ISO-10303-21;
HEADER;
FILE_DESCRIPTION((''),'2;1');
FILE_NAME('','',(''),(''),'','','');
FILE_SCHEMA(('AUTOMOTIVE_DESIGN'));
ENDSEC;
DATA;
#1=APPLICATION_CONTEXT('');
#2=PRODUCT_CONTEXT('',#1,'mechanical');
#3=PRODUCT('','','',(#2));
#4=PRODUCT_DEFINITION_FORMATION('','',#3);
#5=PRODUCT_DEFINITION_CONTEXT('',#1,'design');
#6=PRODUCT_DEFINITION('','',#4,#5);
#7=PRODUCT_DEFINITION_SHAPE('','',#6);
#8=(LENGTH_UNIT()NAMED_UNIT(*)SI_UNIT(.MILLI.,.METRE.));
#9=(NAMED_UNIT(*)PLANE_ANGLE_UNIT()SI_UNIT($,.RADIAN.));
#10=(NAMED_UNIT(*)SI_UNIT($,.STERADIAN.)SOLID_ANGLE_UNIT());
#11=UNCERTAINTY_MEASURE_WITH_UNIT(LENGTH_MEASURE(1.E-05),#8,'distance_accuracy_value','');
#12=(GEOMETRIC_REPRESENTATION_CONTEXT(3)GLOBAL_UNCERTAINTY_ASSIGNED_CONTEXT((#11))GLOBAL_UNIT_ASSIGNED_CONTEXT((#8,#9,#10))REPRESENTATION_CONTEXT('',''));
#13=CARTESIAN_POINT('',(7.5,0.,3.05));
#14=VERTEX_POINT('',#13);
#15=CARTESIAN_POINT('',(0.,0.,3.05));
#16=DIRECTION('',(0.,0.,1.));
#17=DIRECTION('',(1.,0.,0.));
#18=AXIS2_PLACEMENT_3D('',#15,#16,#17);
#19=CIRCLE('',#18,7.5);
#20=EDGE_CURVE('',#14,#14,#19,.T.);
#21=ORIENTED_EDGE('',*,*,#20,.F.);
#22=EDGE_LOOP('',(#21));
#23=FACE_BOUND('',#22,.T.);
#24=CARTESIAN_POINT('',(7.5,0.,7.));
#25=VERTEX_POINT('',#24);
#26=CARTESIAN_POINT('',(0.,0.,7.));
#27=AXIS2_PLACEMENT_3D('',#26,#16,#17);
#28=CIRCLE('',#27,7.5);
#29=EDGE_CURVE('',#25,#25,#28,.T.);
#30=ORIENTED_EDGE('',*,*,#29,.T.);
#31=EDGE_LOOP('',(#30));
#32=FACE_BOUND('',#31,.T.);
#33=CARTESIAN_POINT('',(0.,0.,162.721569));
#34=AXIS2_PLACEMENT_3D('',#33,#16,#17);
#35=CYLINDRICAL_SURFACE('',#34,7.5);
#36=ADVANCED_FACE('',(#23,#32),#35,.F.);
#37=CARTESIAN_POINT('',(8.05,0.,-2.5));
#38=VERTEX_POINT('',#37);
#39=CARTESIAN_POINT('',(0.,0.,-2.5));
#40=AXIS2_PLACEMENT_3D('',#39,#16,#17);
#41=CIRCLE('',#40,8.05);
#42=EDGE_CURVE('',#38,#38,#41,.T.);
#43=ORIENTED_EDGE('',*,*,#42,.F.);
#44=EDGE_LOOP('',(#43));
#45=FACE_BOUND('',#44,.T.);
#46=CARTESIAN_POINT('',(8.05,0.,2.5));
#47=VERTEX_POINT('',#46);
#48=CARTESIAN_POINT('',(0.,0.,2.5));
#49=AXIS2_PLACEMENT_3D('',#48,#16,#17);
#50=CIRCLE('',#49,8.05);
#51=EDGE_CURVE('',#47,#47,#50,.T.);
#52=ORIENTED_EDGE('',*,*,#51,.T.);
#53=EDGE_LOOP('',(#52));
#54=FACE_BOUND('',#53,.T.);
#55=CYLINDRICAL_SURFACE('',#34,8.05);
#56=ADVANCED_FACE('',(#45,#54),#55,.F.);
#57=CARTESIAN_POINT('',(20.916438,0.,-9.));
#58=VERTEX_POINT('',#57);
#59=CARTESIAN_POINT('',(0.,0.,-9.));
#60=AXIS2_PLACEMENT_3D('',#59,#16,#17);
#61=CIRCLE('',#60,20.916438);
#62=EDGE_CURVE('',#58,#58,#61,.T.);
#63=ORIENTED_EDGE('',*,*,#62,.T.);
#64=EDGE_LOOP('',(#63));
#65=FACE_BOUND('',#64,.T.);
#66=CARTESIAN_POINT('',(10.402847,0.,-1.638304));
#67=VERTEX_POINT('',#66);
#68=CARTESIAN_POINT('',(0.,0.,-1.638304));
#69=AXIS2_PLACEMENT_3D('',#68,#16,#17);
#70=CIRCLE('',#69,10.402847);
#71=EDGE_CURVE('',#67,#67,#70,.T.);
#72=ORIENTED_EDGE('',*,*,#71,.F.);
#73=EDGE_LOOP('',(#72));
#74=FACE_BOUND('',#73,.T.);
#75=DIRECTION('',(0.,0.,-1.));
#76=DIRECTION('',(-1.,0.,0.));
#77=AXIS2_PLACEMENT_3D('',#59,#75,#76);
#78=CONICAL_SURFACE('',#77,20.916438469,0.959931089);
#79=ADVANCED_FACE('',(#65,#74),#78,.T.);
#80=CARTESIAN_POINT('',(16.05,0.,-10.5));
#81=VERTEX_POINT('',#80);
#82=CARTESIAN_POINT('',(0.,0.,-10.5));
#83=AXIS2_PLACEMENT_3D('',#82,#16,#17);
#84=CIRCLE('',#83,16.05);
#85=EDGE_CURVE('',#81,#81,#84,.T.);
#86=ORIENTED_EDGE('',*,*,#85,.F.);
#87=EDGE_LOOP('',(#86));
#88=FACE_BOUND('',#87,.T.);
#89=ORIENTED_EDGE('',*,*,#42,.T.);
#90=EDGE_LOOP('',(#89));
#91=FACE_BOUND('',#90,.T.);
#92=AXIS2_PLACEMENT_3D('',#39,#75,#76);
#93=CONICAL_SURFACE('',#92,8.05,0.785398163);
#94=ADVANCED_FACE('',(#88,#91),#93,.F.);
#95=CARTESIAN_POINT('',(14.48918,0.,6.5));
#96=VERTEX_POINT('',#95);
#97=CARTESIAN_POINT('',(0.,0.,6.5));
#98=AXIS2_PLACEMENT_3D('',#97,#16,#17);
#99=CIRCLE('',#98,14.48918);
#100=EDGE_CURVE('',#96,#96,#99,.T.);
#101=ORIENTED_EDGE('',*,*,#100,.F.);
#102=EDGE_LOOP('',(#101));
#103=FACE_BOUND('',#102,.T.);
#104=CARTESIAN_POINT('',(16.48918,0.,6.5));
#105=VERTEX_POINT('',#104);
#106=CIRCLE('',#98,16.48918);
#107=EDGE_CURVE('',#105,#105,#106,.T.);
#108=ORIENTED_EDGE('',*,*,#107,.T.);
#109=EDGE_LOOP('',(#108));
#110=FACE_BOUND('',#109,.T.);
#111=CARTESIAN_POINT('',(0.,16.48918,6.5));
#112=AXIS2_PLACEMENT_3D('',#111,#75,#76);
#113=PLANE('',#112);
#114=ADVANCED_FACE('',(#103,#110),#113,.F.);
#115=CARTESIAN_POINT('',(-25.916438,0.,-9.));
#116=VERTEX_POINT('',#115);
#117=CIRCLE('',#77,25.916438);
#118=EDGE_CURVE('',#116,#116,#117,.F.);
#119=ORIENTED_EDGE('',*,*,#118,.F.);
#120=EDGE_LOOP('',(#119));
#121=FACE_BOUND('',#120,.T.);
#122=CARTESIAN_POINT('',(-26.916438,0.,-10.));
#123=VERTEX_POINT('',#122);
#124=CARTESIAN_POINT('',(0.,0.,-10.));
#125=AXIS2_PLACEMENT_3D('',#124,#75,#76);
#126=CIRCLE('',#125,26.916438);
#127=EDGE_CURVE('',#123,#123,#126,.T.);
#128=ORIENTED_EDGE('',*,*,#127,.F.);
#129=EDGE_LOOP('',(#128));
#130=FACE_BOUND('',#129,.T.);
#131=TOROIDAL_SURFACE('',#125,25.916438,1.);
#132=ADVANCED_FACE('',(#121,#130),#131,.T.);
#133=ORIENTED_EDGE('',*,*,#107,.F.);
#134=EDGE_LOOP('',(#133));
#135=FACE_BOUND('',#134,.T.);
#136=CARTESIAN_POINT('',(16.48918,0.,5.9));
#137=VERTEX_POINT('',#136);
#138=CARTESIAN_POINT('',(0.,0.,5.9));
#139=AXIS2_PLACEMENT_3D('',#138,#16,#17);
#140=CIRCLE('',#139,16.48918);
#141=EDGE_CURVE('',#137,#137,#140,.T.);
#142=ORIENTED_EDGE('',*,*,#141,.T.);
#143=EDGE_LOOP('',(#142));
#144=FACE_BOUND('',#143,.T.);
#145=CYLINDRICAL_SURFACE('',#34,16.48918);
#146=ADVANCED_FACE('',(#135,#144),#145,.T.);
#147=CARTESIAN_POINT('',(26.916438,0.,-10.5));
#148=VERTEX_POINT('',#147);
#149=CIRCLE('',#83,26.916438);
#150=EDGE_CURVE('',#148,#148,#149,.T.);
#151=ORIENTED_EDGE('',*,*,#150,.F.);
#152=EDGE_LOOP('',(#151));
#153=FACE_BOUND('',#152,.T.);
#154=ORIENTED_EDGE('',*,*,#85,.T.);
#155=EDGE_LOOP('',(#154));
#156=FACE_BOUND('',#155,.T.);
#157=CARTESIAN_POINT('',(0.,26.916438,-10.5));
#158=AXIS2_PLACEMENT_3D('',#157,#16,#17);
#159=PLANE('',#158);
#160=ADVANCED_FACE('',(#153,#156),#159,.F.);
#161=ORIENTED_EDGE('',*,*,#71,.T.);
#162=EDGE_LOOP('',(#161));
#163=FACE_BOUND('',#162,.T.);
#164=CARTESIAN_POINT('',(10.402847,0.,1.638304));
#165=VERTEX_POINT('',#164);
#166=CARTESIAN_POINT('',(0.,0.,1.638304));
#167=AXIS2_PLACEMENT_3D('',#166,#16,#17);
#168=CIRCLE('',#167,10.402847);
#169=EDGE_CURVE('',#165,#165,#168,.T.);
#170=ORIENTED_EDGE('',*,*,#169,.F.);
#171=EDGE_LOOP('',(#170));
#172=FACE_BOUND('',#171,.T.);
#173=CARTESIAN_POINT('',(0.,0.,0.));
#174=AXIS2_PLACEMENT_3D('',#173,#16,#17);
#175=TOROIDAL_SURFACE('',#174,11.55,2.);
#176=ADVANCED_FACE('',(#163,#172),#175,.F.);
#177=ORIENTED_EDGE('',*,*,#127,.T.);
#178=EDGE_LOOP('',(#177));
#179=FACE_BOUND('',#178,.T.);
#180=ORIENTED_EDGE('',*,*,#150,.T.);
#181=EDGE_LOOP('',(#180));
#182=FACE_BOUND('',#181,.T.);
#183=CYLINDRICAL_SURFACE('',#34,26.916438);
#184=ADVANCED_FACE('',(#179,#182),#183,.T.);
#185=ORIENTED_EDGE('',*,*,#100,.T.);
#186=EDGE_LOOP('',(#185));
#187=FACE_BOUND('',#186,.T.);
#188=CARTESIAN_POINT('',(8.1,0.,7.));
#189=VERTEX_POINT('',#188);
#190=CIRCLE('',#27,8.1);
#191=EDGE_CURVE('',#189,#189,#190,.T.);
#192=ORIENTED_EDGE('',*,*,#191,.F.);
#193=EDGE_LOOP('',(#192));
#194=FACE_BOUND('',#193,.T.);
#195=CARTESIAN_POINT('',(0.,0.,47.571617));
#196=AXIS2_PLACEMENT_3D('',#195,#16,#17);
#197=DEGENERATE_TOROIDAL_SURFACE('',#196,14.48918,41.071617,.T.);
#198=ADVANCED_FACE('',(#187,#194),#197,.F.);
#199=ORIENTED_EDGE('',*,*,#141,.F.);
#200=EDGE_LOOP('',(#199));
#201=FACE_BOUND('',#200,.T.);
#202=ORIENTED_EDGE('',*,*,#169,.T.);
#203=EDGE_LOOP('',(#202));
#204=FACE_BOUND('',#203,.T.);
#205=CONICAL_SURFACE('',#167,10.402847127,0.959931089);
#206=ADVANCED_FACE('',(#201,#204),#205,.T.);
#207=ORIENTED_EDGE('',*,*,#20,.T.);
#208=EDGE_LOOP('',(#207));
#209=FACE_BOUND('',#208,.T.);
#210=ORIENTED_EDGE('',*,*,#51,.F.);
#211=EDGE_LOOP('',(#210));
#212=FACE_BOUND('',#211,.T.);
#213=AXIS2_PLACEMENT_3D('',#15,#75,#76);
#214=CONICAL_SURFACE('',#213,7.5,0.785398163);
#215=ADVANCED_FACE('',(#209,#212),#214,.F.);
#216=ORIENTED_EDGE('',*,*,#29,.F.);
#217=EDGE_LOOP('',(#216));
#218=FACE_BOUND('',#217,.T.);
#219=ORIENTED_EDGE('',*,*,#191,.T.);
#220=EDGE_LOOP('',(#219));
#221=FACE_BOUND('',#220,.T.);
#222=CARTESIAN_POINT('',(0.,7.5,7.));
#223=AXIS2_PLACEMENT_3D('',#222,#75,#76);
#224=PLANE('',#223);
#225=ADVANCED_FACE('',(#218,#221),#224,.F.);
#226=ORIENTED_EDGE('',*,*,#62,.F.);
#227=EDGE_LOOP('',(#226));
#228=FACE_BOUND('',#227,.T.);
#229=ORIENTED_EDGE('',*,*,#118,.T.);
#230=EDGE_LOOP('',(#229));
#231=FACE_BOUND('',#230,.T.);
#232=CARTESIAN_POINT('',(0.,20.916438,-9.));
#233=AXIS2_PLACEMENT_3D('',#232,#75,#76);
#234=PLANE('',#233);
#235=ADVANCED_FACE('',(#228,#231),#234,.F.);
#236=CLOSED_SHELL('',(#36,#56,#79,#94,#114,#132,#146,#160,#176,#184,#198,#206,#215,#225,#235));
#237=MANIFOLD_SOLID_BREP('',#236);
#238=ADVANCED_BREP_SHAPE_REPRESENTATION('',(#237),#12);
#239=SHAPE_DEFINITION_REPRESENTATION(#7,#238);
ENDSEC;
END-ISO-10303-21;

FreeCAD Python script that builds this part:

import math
import FreeCAD as App
import Part
import Sketcher
Q = App.Units.Quantity


def edges_at(feature, points):
    """Names of the edges that pass closest to the given points."""
    edges = feature.Shape.Edges
    near = lambda p: min(range(len(edges)), key=lambda i: edges[i].distToShape(Part.Vertex(*p))[0])
    return sorted({f"Edge{near(p) + 1}" for p in points})

doc = App.newDocument("Part")
body = doc.addObject("PartDesign::Body", "Body")

sketch1 = body.newObject("Sketcher::SketchObject", "Sketch")
sketch1.AttachmentSupport = (doc.getObject("YZ_Plane"), [""])
sketch1.MapMode = "FlatFace"
sketch1.addGeometry([
    Part.LineSegment(App.Vector(8.1, 2.5, 0), App.Vector(8.1, -2.5, 0)),
    Part.LineSegment(App.Vector(8.1, -2.5, 0), App.Vector(16.1, -10.5, 0)),
    Part.LineSegment(App.Vector(16.1, -10.5, 0), App.Vector(26.9, -10.5, 0)),
    Part.LineSegment(App.Vector(26.9, -10.5, 0), App.Vector(26.9, -9, 0)),
    Part.LineSegment(App.Vector(26.9, -9, 0), App.Vector(20.9, -9, 0)),
    Part.LineSegment(App.Vector(20.9, -9, 0), App.Vector(10.4, -1.6, 0)),
    Part.ArcOfCircle(Part.Circle(App.Vector(11.6, 0, 0), App.Vector(0, 0, 1), 2), math.radians(125), math.radians(235)),
    Part.LineSegment(App.Vector(10.4, 1.6, 0), App.Vector(16.5, 5.9, 0)),
    Part.LineSegment(App.Vector(16.5, 5.9, 0), App.Vector(16.5, 6.5, 0)),
    Part.LineSegment(App.Vector(16.5, 6.5, 0), App.Vector(14.5, 6.5, 0)),
    Part.ArcOfCircle(Part.Circle(App.Vector(14.5, 47.6, 0), App.Vector(0, 0, 1), 41.1), math.radians(-98.95), math.radians(-90)),
    Part.LineSegment(App.Vector(8.1, 7, 0), App.Vector(7.5, 7, 0)),
    Part.LineSegment(App.Vector(7.5, 7, 0), App.Vector(7.5, 3, 0)),
    Part.LineSegment(App.Vector(7.5, 3, 0), App.Vector(8.1, 2.5, 0)),
], False)
sketch1.addConstraint([
    Sketcher.Constraint("Coincident", 0, 2, 1, 1),
    Sketcher.Constraint("Coincident", 1, 2, 2, 1),
    Sketcher.Constraint("Coincident", 2, 2, 3, 1),
    Sketcher.Constraint("Coincident", 3, 2, 4, 1),
    Sketcher.Constraint("Coincident", 4, 2, 5, 1),
    Sketcher.Constraint("Tangent", 5, 2, 6, 2),
    Sketcher.Constraint("Tangent", 6, 1, 7, 1),
    Sketcher.Constraint("Coincident", 7, 2, 8, 1),
    Sketcher.Constraint("Coincident", 8, 2, 9, 1),
    Sketcher.Constraint("Tangent", 9, 2, 10, 2),
    Sketcher.Constraint("Coincident", 10, 1, 11, 1),
    Sketcher.Constraint("Coincident", 11, 2, 12, 1),
    Sketcher.Constraint("Coincident", 12, 2, 13, 1),
    Sketcher.Constraint("Coincident", 13, 2, 0, 1),
    Sketcher.Constraint("Vertical", 0),
    Sketcher.Constraint("Horizontal", 2),
    Sketcher.Constraint("Vertical", 3),
    Sketcher.Constraint("Horizontal", 4),
    Sketcher.Constraint("Vertical", 8),
    Sketcher.Constraint("Horizontal", 9),
    Sketcher.Constraint("Horizontal", 11),
    Sketcher.Constraint("Vertical", 12),
    Sketcher.Constraint("Symmetric", 5, 2, 6, 1, -1),
    Sketcher.Constraint("Parallel", 1, 13),
    Sketcher.Constraint("Equal", 11, 8),
    Sketcher.Constraint("Radius", 6, 2.0),
    Sketcher.Constraint("DistanceX", 4, 2, 4, 1, 6.0),
    Sketcher.Constraint("DistanceX", 9, 2, 9, 1, 2.0),
    Sketcher.Constraint("DistanceY", 0, 2, 0, 1, 5.0),
    Sketcher.Constraint("Angle", 1, Q("-45 deg")),
    Sketcher.Constraint("Angle", 5, Q("145 deg")),
    Sketcher.Constraint("DistanceX", 11, 2, 11, 1, 0.6),
    Sketcher.Constraint("DistanceY", 3, 1, 3, 2, 1.5),
    Sketcher.Constraint("DistanceY", 3, 2, -1, 1, 9.0),
    Sketcher.Constraint("DistanceY", -1, 1, 10, 1, 7.0),
    Sketcher.Constraint("DistanceX", 0, 2, 1, 2, 8.0),
    Sketcher.Constraint("DistanceY", 0, 2, 8, 2, 9.0),
    Sketcher.Constraint("DistanceY", 12, 2, 12, 1, 3.95),
    Sketcher.Constraint("DistanceX", -1, 1, 10, 1, 8.1),
    Sketcher.Constraint("DistanceX", 0, 2, 6, 3, 3.5),
])
revolution = body.newObject("PartDesign::Revolution", "Revolution")
revolution.Profile = sketch1
revolution.ReferenceAxis = (sketch1, ["V_Axis"])
revolution.Angle = 360
doc.recompute()

fillet = body.newObject("PartDesign::Fillet", "Fillet")
fillet.Base = (revolution, edges_at(revolution, [(0, -26.916, -9)]))
fillet.Radius = 1

doc.recompute()
